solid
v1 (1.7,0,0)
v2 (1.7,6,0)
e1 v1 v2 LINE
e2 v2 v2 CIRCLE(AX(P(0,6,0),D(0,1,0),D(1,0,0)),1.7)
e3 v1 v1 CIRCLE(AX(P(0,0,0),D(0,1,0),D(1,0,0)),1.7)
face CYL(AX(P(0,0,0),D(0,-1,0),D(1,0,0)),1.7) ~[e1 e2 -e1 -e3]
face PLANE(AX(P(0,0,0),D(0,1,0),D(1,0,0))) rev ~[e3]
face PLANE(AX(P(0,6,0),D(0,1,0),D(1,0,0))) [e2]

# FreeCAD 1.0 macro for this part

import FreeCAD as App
import Part
import Sketcher
Q = App.Units.Quantity

doc = App.newDocument("Part")
body = doc.addObject("PartDesign::Body", "Body")

# Sketch on XZ plane
sketch1 = doc.addObject("Sketcher::SketchObject", "Sketch")
body.addObject(sketch1)
sketch1.AttachmentSupport = (doc.XZ_Plane, [""])
sketch1.MapMode = "FlatFace"
sketch1.addGeometry(Part.Circle(App.Vector(0, 0, 0), App.Vector(0, 0, 1), 1.7), False)
sketch1.addConstraint(Sketcher.Constraint("Coincident", 0, 3, -1, 1))
sketch1.addConstraint(Sketcher.Constraint("Diameter", 0, Q("3.4 mm")))
pad1 = doc.addObject("PartDesign::Pad", "Pad")
body.addObject(pad1)
pad1.Profile = sketch1
pad1.Length = 6
pad1.Reversed = True

doc.recompute()
